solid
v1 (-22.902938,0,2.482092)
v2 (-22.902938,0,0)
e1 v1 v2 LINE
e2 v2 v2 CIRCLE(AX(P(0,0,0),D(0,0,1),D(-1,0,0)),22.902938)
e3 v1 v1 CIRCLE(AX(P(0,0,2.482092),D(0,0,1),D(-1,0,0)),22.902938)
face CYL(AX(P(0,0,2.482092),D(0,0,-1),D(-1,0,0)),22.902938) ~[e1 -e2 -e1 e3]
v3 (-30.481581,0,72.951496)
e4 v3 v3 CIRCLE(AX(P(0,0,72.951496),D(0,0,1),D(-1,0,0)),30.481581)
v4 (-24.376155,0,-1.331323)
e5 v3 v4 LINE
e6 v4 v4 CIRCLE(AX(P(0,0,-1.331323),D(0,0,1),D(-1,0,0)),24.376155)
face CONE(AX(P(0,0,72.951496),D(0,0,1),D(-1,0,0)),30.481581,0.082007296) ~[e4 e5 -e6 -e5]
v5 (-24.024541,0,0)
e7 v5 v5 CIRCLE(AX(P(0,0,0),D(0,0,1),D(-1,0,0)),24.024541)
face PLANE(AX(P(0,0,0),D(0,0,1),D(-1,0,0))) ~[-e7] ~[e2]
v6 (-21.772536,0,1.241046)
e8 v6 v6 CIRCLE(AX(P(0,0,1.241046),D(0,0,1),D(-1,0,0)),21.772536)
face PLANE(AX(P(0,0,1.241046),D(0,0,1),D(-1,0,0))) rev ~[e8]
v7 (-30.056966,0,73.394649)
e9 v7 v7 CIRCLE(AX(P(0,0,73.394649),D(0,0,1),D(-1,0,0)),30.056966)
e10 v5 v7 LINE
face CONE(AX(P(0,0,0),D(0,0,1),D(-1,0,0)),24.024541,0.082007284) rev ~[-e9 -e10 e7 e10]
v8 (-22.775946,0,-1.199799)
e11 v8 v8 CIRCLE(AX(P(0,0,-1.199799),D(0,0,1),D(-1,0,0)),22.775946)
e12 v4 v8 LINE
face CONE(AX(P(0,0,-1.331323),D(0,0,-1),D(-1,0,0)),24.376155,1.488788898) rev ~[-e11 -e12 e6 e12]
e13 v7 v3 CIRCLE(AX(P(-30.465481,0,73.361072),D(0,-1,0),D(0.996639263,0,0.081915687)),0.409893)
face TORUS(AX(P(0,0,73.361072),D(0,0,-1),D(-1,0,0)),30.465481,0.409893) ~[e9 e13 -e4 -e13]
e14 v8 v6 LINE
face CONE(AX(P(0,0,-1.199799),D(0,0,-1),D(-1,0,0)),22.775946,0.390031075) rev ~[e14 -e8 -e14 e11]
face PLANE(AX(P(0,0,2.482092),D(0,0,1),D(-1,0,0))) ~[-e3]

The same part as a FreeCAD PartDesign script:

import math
import FreeCAD as App
import Part
import Sketcher

V = App.Vector
Q = App.Units.Quantity

doc = App.newDocument("Part")
params = doc.addObject("Spreadsheet::Sheet", "Params")
for row, (alias, value) in enumerate([
    ("revolution_angle", "360 deg"),
], start=1):
    params.set(f"A{row}", alias)
    params.set(f"B{row}", "=" + value)
    params.setAlias(f"B{row}", alias)

body = doc.addObject("PartDesign::Body", "Body")

# Sketch on XZ plane
sketch1 = body.newObject("Sketcher::SketchObject", "Sketch")
sketch1.AttachmentSupport = (doc.getObject("XZ_Plane"), [""])
sketch1.MapMode = "FlatFace"
sketch1.addGeometry([
    Part.LineSegment(V(0, 1.241046, 0), V(0, 2.482092, 0)),  # 0
    Part.LineSegment(V(0, 2.482092, 0), V(-22.902938, 2.482092, 0)),  # 1
    Part.LineSegment(V(-22.902938, 2.482092, 0), V(-22.902938, 0, 0)),  # 2
    Part.LineSegment(V(-22.902938, 0, 0), V(-24.024541, 0, 0)),  # 3
    Part.LineSegment(V(-24.024541, 0, 0), V(-30.056966, 73.394649, 0)),  # 4
    Part.ArcOfCircle(Part.Circle(V(-30.465481, 73.361072, 0), V(0, 0, 1), 0.409893), math.radians(4.698688), math.radians(267.748942)),  # 5
    Part.LineSegment(V(-30.481581, 72.951496, 0), V(-24.376155, -1.331323, 0)),  # 6
    Part.LineSegment(V(-24.376155, -1.331323, 0), V(-22.775946, -1.199799, 0)),  # 7
    Part.LineSegment(V(-22.775946, -1.199799, 0), V(-21.772536, 1.241046, 0)),  # 8
    Part.LineSegment(V(-21.772536, 1.241046, 0), V(0, 1.241046, 0)),  # 9
], False)
sketch1.addConstraint([
    Sketcher.Constraint("Coincident", 0, 2, 1, 1),
    Sketcher.Constraint("Coincident", 1, 2, 2, 1),
    Sketcher.Constraint("Coincident", 2, 2, 3, 1),
    Sketcher.Constraint("Coincident", 3, 2, 4, 1),
    Sketcher.Constraint("Tangent", 4, 2, 5, 1),
    Sketcher.Constraint("Coincident", 5, 2, 6, 1),
    Sketcher.Constraint("Coincident", 6, 2, 7, 1),
    Sketcher.Constraint("Coincident", 7, 2, 8, 1),
    Sketcher.Constraint("Coincident", 8, 2, 9, 1),
    Sketcher.Constraint("Coincident", 9, 2, 0, 1),
    Sketcher.Constraint("Vertical", 0),
    Sketcher.Constraint("Horizontal", 1),
    Sketcher.Constraint("Vertical", 2),
    Sketcher.Constraint("Horizontal", 3),
    Sketcher.Constraint("Horizontal", 9),
    Sketcher.Constraint("PointOnObject", 0, 2, -2),
    Sketcher.Constraint("PointOnObject", 2, 2, -1),
    Sketcher.Constraint("Parallel", 4, 6),
    Sketcher.Constraint("Perpendicular", 6, 7),
    Sketcher.Constraint("Radius", 5, Q("0.409893 mm")),
    Sketcher.Constraint("DistanceY", 7, 2, -1, 1, Q("1.199799 mm")),
    Sketcher.Constraint("DistanceX", 5, 2, 5, 3, Q("0.0161 mm")),
    Sketcher.Constraint("Distance", 4, Q("73.642139 mm")),
    Sketcher.Constraint("DistanceX", 1, 2, 1, 1, Q("22.902938 mm")),
    Sketcher.Constraint("DistanceX", 3, 2, 3, 1, Q("1.121603 mm")),
    Sketcher.Constraint("DistanceX", 9, 1, 9, 2, Q("21.772536 mm")),
    Sketcher.Constraint("DistanceY", 0, 1, 0, 2, Q("1.241046 mm")),
    Sketcher.Constraint("DistanceY", 2, 2, 2, 1, Q("2.482092 mm")),
    Sketcher.Constraint("DistanceX", 5, 3, -1, 1, Q("30.465481 mm")),
    Sketcher.Constraint("DistanceY", 6, 2, 5, 2, Q("74.282819 mm")),
])
revolution = body.newObject("PartDesign::Revolution", "Revolution")
revolution.Profile = sketch1
revolution.ReferenceAxis = (sketch1, ["V_Axis"])
revolution.setExpression("Angle", "Params.revolution_angle")

doc.recompute()
